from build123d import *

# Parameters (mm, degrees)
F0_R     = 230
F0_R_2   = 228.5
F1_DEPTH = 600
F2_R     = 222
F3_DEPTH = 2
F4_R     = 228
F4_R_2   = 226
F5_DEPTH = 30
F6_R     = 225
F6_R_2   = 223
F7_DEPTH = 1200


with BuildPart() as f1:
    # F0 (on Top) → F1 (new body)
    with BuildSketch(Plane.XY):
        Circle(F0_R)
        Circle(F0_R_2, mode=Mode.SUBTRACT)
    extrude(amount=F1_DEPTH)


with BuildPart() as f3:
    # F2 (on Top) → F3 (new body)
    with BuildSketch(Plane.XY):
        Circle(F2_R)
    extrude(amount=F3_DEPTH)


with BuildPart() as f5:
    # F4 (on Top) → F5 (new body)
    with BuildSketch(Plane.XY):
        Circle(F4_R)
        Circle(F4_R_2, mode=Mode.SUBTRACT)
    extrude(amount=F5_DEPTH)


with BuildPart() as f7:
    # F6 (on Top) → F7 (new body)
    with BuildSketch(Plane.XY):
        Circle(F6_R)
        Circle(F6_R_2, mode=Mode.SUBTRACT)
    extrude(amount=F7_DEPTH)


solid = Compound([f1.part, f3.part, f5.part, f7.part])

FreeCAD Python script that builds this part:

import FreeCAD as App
import Part
import Sketcher
Q = App.Units.Quantity

doc = App.newDocument("Part")
body = doc.addObject("PartDesign::Body", "Body")

# Sketch on XY plane
sketch1 = body.newObject("Sketcher::SketchObject", "Sketch")
sketch1.AttachmentSupport = (doc.getObject("XY_Plane"), [""])
sketch1.MapMode = "FlatFace"
sketch1.addGeometry([
    Part.Circle(App.Vector(0, 0, 0), App.Vector(0, 0, 1), 230),
    Part.Circle(App.Vector(0, 0, 0), App.Vector(0, 0, 1), 228),
], False)
sketch1.addConstraint([
    Sketcher.Constraint("Coincident", 0, 3, -1, 1),
    Sketcher.Constraint("Coincident", 1, 3, -1, 1),
    Sketcher.Constraint("Diameter", 0, Q("460 mm")),
    Sketcher.Constraint("Diameter", 1, Q("457 mm")),
])
pad1 = body.newObject("PartDesign::Pad", "Pad")
pad1.Profile = sketch1
pad1.Length = 600
body2 = doc.addObject("PartDesign::Body", "Body001")

# Sketch on XY plane
sketch2 = body2.newObject("Sketcher::SketchObject", "Sketch001")
sketch2.AttachmentSupport = (doc.getObject("XY_Plane001"), [""])
sketch2.MapMode = "FlatFace"
sketch2.addGeometry(Part.Circle(App.Vector(0, 0, 0), App.Vector(0, 0, 1), 222), False)
sketch2.addConstraint([
    Sketcher.Constraint("Coincident", 0, 3, -1, 1),
    Sketcher.Constraint("Diameter", 0, Q("444 mm")),
])
pad2 = body2.newObject("PartDesign::Pad", "Pad001")
pad2.Profile = sketch2
pad2.Length = 2
body3 = doc.addObject("PartDesign::Body", "Body002")

# Sketch on XY plane
sketch3 = body3.newObject("Sketcher::SketchObject", "Sketch002")
sketch3.AttachmentSupport = (doc.getObject("XY_Plane002"), [""])
sketch3.MapMode = "FlatFace"
sketch3.addGeometry([
    Part.Circle(App.Vector(0, 0, 0), App.Vector(0, 0, 1), 228),
    Part.Circle(App.Vector(0, 0, 0), App.Vector(0, 0, 1), 226),
], False)
sketch3.addConstraint([
    Sketcher.Constraint("Coincident", 0, 3, -1, 1),
    Sketcher.Constraint("Coincident", 1, 3, -1, 1),
    Sketcher.Constraint("Diameter", 0, Q("456 mm")),
    Sketcher.Constraint("Diameter", 1, Q("452 mm")),
])
pad3 = body3.newObject("PartDesign::Pad", "Pad002")
pad3.Profile = sketch3
pad3.Length = 30
body4 = doc.addObject("PartDesign::Body", "Body003")

# Sketch on XY plane
sketch4 = body4.newObject("Sketcher::SketchObject", "Sketch003")
sketch4.AttachmentSupport = (doc.getObject("XY_Plane003"), [""])
sketch4.MapMode = "FlatFace"
sketch4.addGeometry([
    Part.Circle(App.Vector(0, 0, 0), App.Vector(0, 0, 1), 225),
    Part.Circle(App.Vector(0, 0, 0), App.Vector(0, 0, 1), 223),
], False)
sketch4.addConstraint([
    Sketcher.Constraint("Coincident", 0, 3, -1, 1),
    Sketcher.Constraint("Coincident", 1, 3, -1, 1),
    Sketcher.Constraint("Diameter", 0, Q("450 mm")),
    Sketcher.Constraint("Diameter", 1, Q("446 mm")),
])
pad4 = body4.newObject("PartDesign::Pad", "Pad003")
pad4.Profile = sketch4
pad4.Length = 1200

doc.recompute()
